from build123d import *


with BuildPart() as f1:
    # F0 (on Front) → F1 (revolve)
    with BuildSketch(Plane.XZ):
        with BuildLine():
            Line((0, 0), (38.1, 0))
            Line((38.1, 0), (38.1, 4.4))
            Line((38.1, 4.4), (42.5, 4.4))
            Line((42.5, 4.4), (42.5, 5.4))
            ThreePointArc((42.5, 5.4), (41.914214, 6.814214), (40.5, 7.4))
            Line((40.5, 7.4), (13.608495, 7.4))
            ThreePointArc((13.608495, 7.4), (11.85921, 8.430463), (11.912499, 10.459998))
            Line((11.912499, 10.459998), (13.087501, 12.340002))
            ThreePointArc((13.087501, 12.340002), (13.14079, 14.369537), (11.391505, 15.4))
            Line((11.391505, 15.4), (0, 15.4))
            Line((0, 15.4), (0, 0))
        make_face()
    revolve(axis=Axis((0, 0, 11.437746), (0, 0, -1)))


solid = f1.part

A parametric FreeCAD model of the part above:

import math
import FreeCAD as App
import Part
import Sketcher
Q = App.Units.Quantity

doc = App.newDocument("Part")
body = doc.addObject("PartDesign::Body", "Body")

# Sketch on XZ plane
sketch1 = body.newObject("Sketcher::SketchObject", "Sketch")
sketch1.AttachmentSupport = (doc.getObject("XZ_Plane"), [""])
sketch1.MapMode = "FlatFace"
sketch1.addGeometry(Part.LineSegment(App.Vector(0, 0, 0), App.Vector(38.1, 0, 0)), False)
sketch1.addGeometry(Part.LineSegment(App.Vector(38.1, 0, 0), App.Vector(38.1, 4.4, 0)), False)
sketch1.addGeometry(Part.LineSegment(App.Vector(38.1, 4.4, 0), App.Vector(42.5, 4.4, 0)), False)
sketch1.addGeometry(Part.LineSegment(App.Vector(42.5, 4.4, 0), App.Vector(42.5, 5.4, 0)), False)
sketch1.addGeometry(Part.ArcOfCircle(Part.Circle(App.Vector(40.5, 5.4, 0), App.Vector(0, 0, 1), 2), math.radians(0), math.radians(90)), False)
sketch1.addGeometry(Part.LineSegment(App.Vector(40.5, 7.4, 0), App.Vector(13.6, 7.4, 0)), False)
sketch1.addGeometry(Part.ArcOfCircle(Part.Circle(App.Vector(13.6, 9.4, 0), App.Vector(0, 0, 1), 2), math.radians(148), math.radians(270)), False)
sketch1.addGeometry(Part.LineSegment(App.Vector(11.9, 10.5, 0), App.Vector(13.1, 12.3, 0)), False)
sketch1.addGeometry(Part.ArcOfCircle(Part.Circle(App.Vector(11.4, 13.4, 0), App.Vector(0, 0, 1), 2), math.radians(-32), math.radians(90)), False)
sketch1.addGeometry(Part.LineSegment(App.Vector(11.4, 15.4, 0), App.Vector(0, 15.4, 0)), False)
sketch1.addGeometry(Part.LineSegment(App.Vector(0, 15.4, 0), App.Vector(0, 0, 0)), False)
sketch1.addConstraint(Sketcher.Constraint("Coincident", 0, 2, 1, 1))
sketch1.addConstraint(Sketcher.Constraint("Coincident", 1, 2, 2, 1))
sketch1.addConstraint(Sketcher.Constraint("Coincident", 2, 2, 3, 1))
sketch1.addConstraint(Sketcher.Constraint("Tangent", 3, 2, 4, 1))
sketch1.addConstraint(Sketcher.Constraint("Tangent", 4, 2, 5, 1))
sketch1.addConstraint(Sketcher.Constraint("Tangent", 5, 2, 6, 2))
sketch1.addConstraint(Sketcher.Constraint("Tangent", 6, 1, 7, 1))
sketch1.addConstraint(Sketcher.Constraint("Tangent", 7, 2, 8, 1))
sketch1.addConstraint(Sketcher.Constraint("Tangent", 8, 2, 9, 1))
sketch1.addConstraint(Sketcher.Constraint("Coincident", 9, 2, 10, 1))
sketch1.addConstraint(Sketcher.Constraint("Coincident", 10, 2, 0, 1))
sketch1.addConstraint(Sketcher.Constraint("Horizontal", 0))
sketch1.addConstraint(Sketcher.Constraint("Vertical", 1))
sketch1.addConstraint(Sketcher.Constraint("Horizontal", 2))
sketch1.addConstraint(Sketcher.Constraint("Vertical", 3))
sketch1.addConstraint(Sketcher.Constraint("Horizontal", 5))
sketch1.addConstraint(Sketcher.Constraint("Horizontal", 9))
sketch1.addConstraint(Sketcher.Constraint("Vertical", 10))
sketch1.addConstraint(Sketcher.Constraint("Coincident", 10, 2, -1, 1))
sketch1.addConstraint(Sketcher.Constraint("Equal", 4, 6))
sketch1.addConstraint(Sketcher.Constraint("Equal", 6, 8))
sketch1.addConstraint(Sketcher.Constraint("Equal", 2, 1))
sketch1.addConstraint(Sketcher.Constraint("Radius", 4, Q("1.999999 mm")))
sketch1.addConstraint(Sketcher.Constraint("DistanceY", 3, 1, 3, 2, Q("1 mm")))
sketch1.addConstraint(Sketcher.Constraint("DistanceX", 0, 1, 0, 2, Q("38.1 mm")))
sketch1.addConstraint(Sketcher.Constraint("DistanceX", 2, 1, 2, 2, Q("4.4 mm")))
sketch1.addConstraint(Sketcher.Constraint("DistanceY", 10, 2, 10, 1, Q("15.4 mm")))
sketch1.addConstraint(Sketcher.Constraint("DistanceY", -1, 1, 6, 1, Q("10.459998 mm")))
sketch1.addConstraint(Sketcher.Constraint("DistanceX", -1, 1, 6, 1, Q("11.912499 mm")))
revolution = body.newObject("PartDesign::Revolution", "Revolution")
revolution.Profile = sketch1
revolution.ReferenceAxis = (sketch1, ["V_Axis"])
revolution.Angle = 360

doc.recompute()
